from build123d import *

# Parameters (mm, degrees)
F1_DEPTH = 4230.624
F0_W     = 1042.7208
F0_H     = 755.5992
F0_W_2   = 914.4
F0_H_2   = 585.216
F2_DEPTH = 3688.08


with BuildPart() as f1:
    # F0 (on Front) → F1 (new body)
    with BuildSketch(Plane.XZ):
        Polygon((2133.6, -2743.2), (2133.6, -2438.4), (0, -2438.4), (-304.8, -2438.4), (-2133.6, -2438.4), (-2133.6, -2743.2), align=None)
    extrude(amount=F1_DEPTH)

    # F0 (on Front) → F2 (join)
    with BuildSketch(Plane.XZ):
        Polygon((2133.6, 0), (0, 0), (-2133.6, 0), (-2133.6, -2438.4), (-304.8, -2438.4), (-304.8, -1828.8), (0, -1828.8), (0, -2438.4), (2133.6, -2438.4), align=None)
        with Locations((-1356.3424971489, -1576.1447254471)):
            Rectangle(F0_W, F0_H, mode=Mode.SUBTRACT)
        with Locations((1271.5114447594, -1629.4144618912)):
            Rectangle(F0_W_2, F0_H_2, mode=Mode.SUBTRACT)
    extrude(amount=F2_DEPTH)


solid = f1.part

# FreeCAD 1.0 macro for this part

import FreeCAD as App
import Part
import Sketcher
from FreeCAD import Vector
Q = App.Units.Quantity

doc = App.newDocument("Part")
body = doc.addObject("PartDesign::Body", "Body")

# Sketch on XZ plane
sketch1 = doc.addObject("Sketcher::SketchObject", "Sketch")
body.addObject(sketch1)
sketch1.AttachmentSupport = (doc.XZ_Plane, [""])
sketch1.MapMode = "FlatFace"
sketch1.addGeometry([
    Part.LineSegment(Vector(2134, -2743, 0), Vector(2134, -2438, 0)),
    Part.LineSegment(Vector(2134, -2438, 0), Vector(-2134, -2438, 0)),
    Part.LineSegment(Vector(-2134, -2438, 0), Vector(-2134, -2743, 0)),
    Part.LineSegment(Vector(-2134, -2743, 0), Vector(2134, -2743, 0)),
], False)
sketch1.addConstraint([
    Sketcher.Constraint("Coincident", 0, 2, 1, 1),
    Sketcher.Constraint("Coincident", 1, 2, 2, 1),
    Sketcher.Constraint("Coincident", 2, 2, 3, 1),
    Sketcher.Constraint("Coincident", 3, 2, 0, 1),
    Sketcher.Constraint("Vertical", 0),
    Sketcher.Constraint("Horizontal", 1),
    Sketcher.Constraint("Vertical", 2),
    Sketcher.Constraint("Horizontal", 3),
    Sketcher.Constraint("DistanceX", 1, 2, 1, 1, Q("168 in")),
    Sketcher.Constraint("DistanceY", 0, 1, 0, 2, Q("12 in")),
    Sketcher.Constraint("DistanceX", -1, 1, 0, 2, Q("84 in")),
    Sketcher.Constraint("DistanceY", 0, 2, -1, 1, Q("96 in")),
])
pad1 = doc.addObject("PartDesign::Pad", "Pad")
body.addObject(pad1)
pad1.Profile = sketch1
pad1.Length = Q("166.56 in")

# Sketch on XZ plane
sketch2 = doc.addObject("Sketcher::SketchObject", "Sketch001")
body.addObject(sketch2)
sketch2.AttachmentSupport = (doc.XZ_Plane, [""])
sketch2.MapMode = "FlatFace"
sketch2.addGeometry([
    Part.LineSegment(Vector(2134, 0, 0), Vector(-2134, 0, 0)),  # 0
    Part.LineSegment(Vector(-2134, 0, 0), Vector(-2134, -2438, 0)),  # 1
    Part.LineSegment(Vector(-2134, -2438, 0), Vector(-305, -2438, 0)),  # 2
    Part.LineSegment(Vector(-305, -2438, 0), Vector(-305, -1829, 0)),  # 3
    Part.LineSegment(Vector(-305, -1829, 0), Vector(0, -1829, 0)),  # 4
    Part.LineSegment(Vector(0, -1829, 0), Vector(0, -2438, 0)),  # 5
    Part.LineSegment(Vector(0, -2438, 0), Vector(2134, -2438, 0)),  # 6
    Part.LineSegment(Vector(2134, -2438, 0), Vector(2134, 0, 0)),  # 7
    Part.LineSegment(Vector(1729, -1922, 0), Vector(814, -1922, 0)),  # 8
    Part.LineSegment(Vector(814, -1922, 0), Vector(814, -1337, 0)),  # 9
    Part.LineSegment(Vector(814, -1337, 0), Vector(1729, -1337, 0)),  # 10
    Part.LineSegment(Vector(1729, -1337, 0), Vector(1729, -1922, 0)),  # 11
    Part.LineSegment(Vector(-835, -1954, 0), Vector(-1878, -1954, 0)),  # 12
    Part.LineSegment(Vector(-1878, -1954, 0), Vector(-1878, -1198, 0)),  # 13
    Part.LineSegment(Vector(-1878, -1198, 0), Vector(-835, -1198, 0)),  # 14
    Part.LineSegment(Vector(-835, -1198, 0), Vector(-835, -1954, 0)),  # 15
], False)
sketch2.addConstraint([
    Sketcher.Constraint("Coincident", 0, 2, 1, 1),
    Sketcher.Constraint("Coincident", 1, 2, 2, 1),
    Sketcher.Constraint("Coincident", 2, 2, 3, 1),
    Sketcher.Constraint("Coincident", 3, 2, 4, 1),
    Sketcher.Constraint("Coincident", 4, 2, 5, 1),
    Sketcher.Constraint("Coincident", 5, 2, 6, 1),
    Sketcher.Constraint("Coincident", 6, 2, 7, 1),
    Sketcher.Constraint("Coincident", 7, 2, 0, 1),
    Sketcher.Constraint("Coincident", 8, 2, 9, 1),
    Sketcher.Constraint("Coincident", 9, 2, 10, 1),
    Sketcher.Constraint("Coincident", 10, 2, 11, 1),
    Sketcher.Constraint("Coincident", 11, 2, 8, 1),
    Sketcher.Constraint("Coincident", 12, 2, 13, 1),
    Sketcher.Constraint("Coincident", 13, 2, 14, 1),
    Sketcher.Constraint("Coincident", 14, 2, 15, 1),
    Sketcher.Constraint("Coincident", 15, 2, 12, 1),
    Sketcher.Constraint("Horizontal", 0),
    Sketcher.Constraint("Vertical", 1),
    Sketcher.Constraint("Horizontal", 2),
    Sketcher.Constraint("Vertical", 3),
    Sketcher.Constraint("Horizontal", 4),
    Sketcher.Constraint("Vertical", 5),
    Sketcher.Constraint("Horizontal", 6),
    Sketcher.Constraint("Vertical", 7),
    Sketcher.Constraint("Horizontal", 8),
    Sketcher.Constraint("Vertical", 9),
    Sketcher.Constraint("Horizontal", 10),
    Sketcher.Constraint("Vertical", 11),
    Sketcher.Constraint("Horizontal", 12),
    Sketcher.Constraint("Vertical", 13),
    Sketcher.Constraint("Horizontal", 14),
    Sketcher.Constraint("Vertical", 15),
    Sketcher.Constraint("Symmetric", 0, 2, 7, 2, -1, 1),
    Sketcher.Constraint("PointOnObject", 4, 2, -2),
    Sketcher.Constraint("Horizontal", 2, 2, 5, 2),
    Sketcher.Constraint("DistanceX", 0, 2, 0, 1, Q("168 in")),
    Sketcher.Constraint("DistanceX", 2, 1, 2, 2, Q("72 in")),
    Sketcher.Constraint("DistanceX", 8, 2, 8, 1, Q("36 in")),
    Sketcher.Constraint("DistanceY", 1, 2, 1, 1, Q("96 in")),
    Sketcher.Constraint("DistanceY", 3, 1, 3, 2, Q("24 in")),
    Sketcher.Constraint("DistanceY", 9, 1, 9, 2, Q("23.04 in")),
    Sketcher.Constraint("DistanceX", 12, 2, 12, 1, Q("41.052 in")),
    Sketcher.Constraint("DistanceY", 13, 1, 13, 2, Q("29.748 in")),
    Sketcher.Constraint("DistanceY", 8, 2, -1, 1, Q("1922.022462 mm")),
    Sketcher.Constraint("DistanceX", -1, 1, 8, 2, Q("814.311445 mm")),
    Sketcher.Constraint("DistanceX", 12, 2, -1, 1, Q("1877.702897 mm")),
    Sketcher.Constraint("DistanceY", 12, 2, -1, 1, Q("1953.944325 mm")),
])
pad2 = doc.addObject("PartDesign::Pad", "Pad001")
body.addObject(pad2)
pad2.Profile = sketch2
pad2.Length = Q("145.2 in")

doc.recompute()
